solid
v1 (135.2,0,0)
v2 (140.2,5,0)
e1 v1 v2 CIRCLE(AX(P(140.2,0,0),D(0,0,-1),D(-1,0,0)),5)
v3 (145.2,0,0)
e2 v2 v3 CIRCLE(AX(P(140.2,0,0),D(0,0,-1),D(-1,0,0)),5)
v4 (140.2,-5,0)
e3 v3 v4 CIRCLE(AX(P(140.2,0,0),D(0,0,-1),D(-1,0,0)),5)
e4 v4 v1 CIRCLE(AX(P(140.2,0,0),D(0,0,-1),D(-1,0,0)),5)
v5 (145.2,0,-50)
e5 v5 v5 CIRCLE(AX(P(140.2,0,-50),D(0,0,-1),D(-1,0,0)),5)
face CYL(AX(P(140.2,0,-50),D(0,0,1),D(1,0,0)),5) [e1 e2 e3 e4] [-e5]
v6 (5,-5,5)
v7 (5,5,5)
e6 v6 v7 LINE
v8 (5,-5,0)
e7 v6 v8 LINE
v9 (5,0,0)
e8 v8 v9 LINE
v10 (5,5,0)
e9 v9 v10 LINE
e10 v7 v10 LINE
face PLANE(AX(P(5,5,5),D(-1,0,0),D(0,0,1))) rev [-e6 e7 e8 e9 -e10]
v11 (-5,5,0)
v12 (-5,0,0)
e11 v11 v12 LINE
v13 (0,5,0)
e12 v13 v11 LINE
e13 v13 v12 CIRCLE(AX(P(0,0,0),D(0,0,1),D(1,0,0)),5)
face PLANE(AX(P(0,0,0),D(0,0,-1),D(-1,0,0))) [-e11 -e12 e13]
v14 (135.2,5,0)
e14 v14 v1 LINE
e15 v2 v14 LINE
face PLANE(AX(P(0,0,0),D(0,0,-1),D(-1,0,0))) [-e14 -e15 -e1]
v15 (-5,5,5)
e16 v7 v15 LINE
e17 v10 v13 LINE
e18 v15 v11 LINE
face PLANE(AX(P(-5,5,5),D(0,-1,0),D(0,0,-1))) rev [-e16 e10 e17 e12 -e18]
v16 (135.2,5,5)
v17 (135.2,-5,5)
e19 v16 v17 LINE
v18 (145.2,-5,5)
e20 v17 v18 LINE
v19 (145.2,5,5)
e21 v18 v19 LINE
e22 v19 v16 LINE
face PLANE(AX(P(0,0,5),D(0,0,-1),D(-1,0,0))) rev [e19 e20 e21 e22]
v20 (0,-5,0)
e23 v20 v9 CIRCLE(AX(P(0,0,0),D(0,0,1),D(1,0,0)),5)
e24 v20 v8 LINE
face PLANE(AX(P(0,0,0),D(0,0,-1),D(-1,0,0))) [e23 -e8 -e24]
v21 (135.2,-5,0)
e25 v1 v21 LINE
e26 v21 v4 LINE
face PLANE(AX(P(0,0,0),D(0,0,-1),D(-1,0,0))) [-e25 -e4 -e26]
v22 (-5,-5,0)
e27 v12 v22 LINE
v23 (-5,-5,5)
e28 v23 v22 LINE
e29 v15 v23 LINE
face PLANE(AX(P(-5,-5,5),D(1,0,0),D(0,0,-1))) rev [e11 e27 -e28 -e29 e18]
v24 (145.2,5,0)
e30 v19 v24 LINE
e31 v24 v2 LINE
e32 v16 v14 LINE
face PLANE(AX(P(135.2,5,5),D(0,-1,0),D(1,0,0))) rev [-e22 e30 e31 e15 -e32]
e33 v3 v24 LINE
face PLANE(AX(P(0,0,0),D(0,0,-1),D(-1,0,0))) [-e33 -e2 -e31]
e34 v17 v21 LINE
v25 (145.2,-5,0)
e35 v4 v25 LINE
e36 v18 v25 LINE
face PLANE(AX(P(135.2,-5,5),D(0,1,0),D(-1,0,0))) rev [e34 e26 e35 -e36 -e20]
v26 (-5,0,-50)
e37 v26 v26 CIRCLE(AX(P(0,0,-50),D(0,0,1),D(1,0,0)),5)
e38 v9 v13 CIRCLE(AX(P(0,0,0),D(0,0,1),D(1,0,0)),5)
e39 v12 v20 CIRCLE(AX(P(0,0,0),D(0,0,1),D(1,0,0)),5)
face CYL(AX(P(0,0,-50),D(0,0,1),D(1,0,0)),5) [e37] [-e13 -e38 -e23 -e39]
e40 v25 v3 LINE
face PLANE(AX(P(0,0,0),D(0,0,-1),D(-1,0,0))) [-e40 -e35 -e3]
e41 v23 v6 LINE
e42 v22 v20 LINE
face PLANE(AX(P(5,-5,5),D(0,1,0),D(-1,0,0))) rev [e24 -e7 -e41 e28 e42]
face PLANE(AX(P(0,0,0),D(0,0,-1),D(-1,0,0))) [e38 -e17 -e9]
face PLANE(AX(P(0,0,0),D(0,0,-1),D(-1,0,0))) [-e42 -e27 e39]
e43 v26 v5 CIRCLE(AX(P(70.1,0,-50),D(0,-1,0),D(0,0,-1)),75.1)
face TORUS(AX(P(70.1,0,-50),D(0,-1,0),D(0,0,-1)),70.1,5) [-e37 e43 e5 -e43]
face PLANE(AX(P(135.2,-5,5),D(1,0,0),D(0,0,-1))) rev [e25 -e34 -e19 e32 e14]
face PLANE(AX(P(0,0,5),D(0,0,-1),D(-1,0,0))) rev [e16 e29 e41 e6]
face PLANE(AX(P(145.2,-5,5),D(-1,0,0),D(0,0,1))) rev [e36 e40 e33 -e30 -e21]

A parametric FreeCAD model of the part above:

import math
import FreeCAD as App
import Part
import Sketcher

V = App.Vector
Q = App.Units.Quantity


def add_polygon(sketch, points):
    """Adds a closed chain of lines whose ends are joined by coincident constraints."""
    first, n = sketch.GeometryCount, len(points)
    for a, b in zip(points, points[1:] + points[:1]):
        sketch.addGeometry(Part.LineSegment(App.Vector(*a, 0), App.Vector(*b, 0)), False)
    for i in range(n):
        sketch.addConstraint(Sketcher.Constraint("Coincident", first + i, 2, first + (i + 1) % n, 1))

doc = App.newDocument("Part")
params = doc.addObject("Spreadsheet::Sheet", "Params")
for row, (alias, value) in enumerate([
    ("sketch1_diameter", "10 mm"),
    ("sketch2_radius", "70.1 mm"),
    ("sketch2_height", "50 mm"),
    ("sketch3_width", "10 mm"),
    ("pad1_length", "5 mm"),
    ("sketch4_width", "10 mm"),
    ("pad2_length", "5 mm"),
], start=1):
    params.set(f"A{row}", alias)
    params.set(f"B{row}", "=" + value)
    params.setAlias(f"B{row}", alias)

body = doc.addObject("PartDesign::Body", "Body")

# Sketch on XY plane
sketch1 = body.newObject("Sketcher::SketchObject", "Sketch")
sketch1.AttachmentSupport = (doc.getObject("XY_Plane"), [""])
sketch1.MapMode = "FlatFace"
sketch1.addGeometry(Part.Circle(V(0, 0, 0), V(0, 0, 1), 5), False)
sketch1.addConstraint([
    Sketcher.Constraint("Coincident", 0, 3, -1, 1),
    Sketcher.Constraint("Diameter", 0, Q("10 mm")),
])
sketch1.setExpression("Constraints[1]", "Params.sketch1_diameter")

# Sketch on XZ plane
sketch2 = body.newObject("Sketcher::SketchObject", "Sketch001")
sketch2.AttachmentSupport = (doc.getObject("XZ_Plane"), [""])
sketch2.MapMode = "FlatFace"
sketch2.addGeometry([
    Part.LineSegment(V(0, 0, 0), V(0, -50, 0)),
    Part.ArcOfCircle(Part.Circle(V(70.1, -50, 0), V(0, 0, 1), 70.1), math.radians(180), math.radians(360)),
    Part.LineSegment(V(140.2, -50, 0), V(140.2, 0, 0)),
], False)
sketch2.addConstraint([
    Sketcher.Constraint("Tangent", 0, 2, 1, 1),
    Sketcher.Constraint("Tangent", 1, 2, 2, 1),
    Sketcher.Constraint("Vertical", 0),
    Sketcher.Constraint("Vertical", 2),
    Sketcher.Constraint("Coincident", 0, 1, -1, 1),
    Sketcher.Constraint("PointOnObject", 2, 2, -1),
    Sketcher.Constraint("Radius", 1, Q("70.1 mm")),
    Sketcher.Constraint("DistanceY", 0, 2, 0, 1, Q("50 mm")),
])
sketch2.setExpression("Constraints[6]", "Params.sketch2_radius")
sketch2.setExpression("Constraints[7]", "Params.sketch2_height")
doc.recompute()

additivepipe = body.newObject("PartDesign::AdditivePipe", "AdditivePipe")
additivepipe.Profile = sketch1
additivepipe.Spine = (sketch2, ["Edge1", "Edge2", "Edge3"])

# Sketch on XY plane
sketch3 = body.newObject("Sketcher::SketchObject", "Sketch002")
sketch3.AttachmentSupport = (doc.getObject("XY_Plane"), [""])
sketch3.MapMode = "FlatFace"
add_polygon(sketch3, [(-5, 5), (-5, -5), (5, -5), (5, 5)])  # lines 0-3
sketch3.addConstraint([
    Sketcher.Constraint("Vertical", 0),
    Sketcher.Constraint("Horizontal", 1),
    Sketcher.Constraint("Vertical", 2),
    Sketcher.Constraint("Horizontal", 3),
    Sketcher.Constraint("Symmetric", 0, 2, 2, 2, -1, 1),
    Sketcher.Constraint("Equal", 3, 0),
    Sketcher.Constraint("DistanceX", 1, 1, 1, 2, Q("10 mm")),
])
sketch3.setExpression("Constraints[10]", "Params.sketch3_width")
pad1 = body.newObject("PartDesign::Pad", "Pad")
pad1.Profile = sketch3
pad1.setExpression("Length", "Params.pad1_length")

# Sketch on XY plane
sketch4 = body.newObject("Sketcher::SketchObject", "Sketch003")
sketch4.AttachmentSupport = (doc.getObject("XY_Plane"), [""])
sketch4.MapMode = "FlatFace"
add_polygon(sketch4, [(135.2, 5), (135.2, -5), (145.2, -5), (145.2, 5)])  # lines 0-3
sketch4.addConstraint([
    Sketcher.Constraint("Vertical", 0),
    Sketcher.Constraint("Horizontal", 1),
    Sketcher.Constraint("Vertical", 2),
    Sketcher.Constraint("Horizontal", 3),
    Sketcher.Constraint("Equal", 3, 0),
    Sketcher.Constraint("DistanceX", 1, 1, 1, 2, Q("10 mm")),
    Sketcher.Constraint("DistanceY", 0, 2, -1, 1, Q("5 mm")),
    Sketcher.Constraint("DistanceX", -1, 1, 0, 2, Q("135.2 mm")),
])
sketch4.setExpression("Constraints[9]", "Params.sketch4_width")
pad2 = body.newObject("PartDesign::Pad", "Pad001")
pad2.Profile = sketch4
pad2.setExpression("Length", "Params.pad2_length")

doc.recompute()
